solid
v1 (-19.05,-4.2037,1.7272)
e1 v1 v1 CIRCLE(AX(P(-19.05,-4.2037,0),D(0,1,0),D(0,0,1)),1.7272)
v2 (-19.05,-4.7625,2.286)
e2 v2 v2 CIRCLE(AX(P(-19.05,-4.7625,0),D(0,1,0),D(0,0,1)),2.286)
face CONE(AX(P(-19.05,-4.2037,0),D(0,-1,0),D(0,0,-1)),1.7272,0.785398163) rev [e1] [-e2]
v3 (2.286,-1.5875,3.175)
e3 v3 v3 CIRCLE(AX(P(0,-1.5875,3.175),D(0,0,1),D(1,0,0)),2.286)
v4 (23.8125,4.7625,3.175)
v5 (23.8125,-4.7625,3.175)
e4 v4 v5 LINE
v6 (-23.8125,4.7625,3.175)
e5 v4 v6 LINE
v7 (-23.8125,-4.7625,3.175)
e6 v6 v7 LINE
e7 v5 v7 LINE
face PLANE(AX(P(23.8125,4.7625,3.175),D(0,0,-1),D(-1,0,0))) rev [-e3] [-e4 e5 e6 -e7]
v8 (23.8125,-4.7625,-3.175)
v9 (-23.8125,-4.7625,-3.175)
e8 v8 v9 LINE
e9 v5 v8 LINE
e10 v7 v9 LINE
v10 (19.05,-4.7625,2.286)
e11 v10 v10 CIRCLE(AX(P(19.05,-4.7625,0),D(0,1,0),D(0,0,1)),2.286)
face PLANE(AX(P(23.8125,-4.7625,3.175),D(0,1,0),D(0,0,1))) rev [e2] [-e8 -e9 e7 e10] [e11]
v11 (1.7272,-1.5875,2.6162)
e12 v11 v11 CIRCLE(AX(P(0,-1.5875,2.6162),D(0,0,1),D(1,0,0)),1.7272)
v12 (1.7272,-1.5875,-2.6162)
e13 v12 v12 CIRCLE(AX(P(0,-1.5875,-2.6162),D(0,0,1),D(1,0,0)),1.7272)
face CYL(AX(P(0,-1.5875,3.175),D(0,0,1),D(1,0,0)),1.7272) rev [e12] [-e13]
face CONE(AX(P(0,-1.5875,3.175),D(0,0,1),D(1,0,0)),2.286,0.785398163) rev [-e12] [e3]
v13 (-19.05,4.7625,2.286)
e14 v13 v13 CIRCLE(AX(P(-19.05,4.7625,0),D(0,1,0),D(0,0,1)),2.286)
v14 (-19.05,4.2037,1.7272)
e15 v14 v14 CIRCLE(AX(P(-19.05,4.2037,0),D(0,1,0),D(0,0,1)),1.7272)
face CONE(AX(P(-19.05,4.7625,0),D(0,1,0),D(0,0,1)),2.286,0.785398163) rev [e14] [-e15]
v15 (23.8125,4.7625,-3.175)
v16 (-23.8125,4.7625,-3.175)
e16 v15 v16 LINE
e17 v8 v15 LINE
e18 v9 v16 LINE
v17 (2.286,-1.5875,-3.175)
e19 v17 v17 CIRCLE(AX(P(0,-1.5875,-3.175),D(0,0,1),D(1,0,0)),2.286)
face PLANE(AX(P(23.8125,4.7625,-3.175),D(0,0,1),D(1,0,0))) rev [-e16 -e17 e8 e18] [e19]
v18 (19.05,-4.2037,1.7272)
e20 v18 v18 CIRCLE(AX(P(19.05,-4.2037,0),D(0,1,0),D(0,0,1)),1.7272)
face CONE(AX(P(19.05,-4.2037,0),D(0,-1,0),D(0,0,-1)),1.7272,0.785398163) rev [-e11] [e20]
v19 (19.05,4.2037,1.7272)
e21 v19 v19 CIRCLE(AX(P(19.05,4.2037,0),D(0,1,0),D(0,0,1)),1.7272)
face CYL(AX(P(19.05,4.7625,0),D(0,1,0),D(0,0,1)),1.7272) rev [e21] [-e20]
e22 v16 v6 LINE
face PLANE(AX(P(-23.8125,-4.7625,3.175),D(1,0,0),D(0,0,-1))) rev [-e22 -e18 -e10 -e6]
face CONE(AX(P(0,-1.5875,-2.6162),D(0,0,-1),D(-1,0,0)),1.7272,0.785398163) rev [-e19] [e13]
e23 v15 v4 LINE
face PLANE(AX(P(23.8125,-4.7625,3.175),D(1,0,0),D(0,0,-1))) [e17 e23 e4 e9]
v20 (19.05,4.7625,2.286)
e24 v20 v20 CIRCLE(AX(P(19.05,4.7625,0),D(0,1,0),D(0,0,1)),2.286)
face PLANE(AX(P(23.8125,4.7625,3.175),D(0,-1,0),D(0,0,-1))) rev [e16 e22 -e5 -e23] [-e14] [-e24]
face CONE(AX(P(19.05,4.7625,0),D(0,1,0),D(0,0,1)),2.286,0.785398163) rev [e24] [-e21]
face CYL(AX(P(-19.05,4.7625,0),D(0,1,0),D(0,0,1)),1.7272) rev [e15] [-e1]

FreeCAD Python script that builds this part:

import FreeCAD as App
import Part
import Sketcher

V = App.Vector
Q = App.Units.Quantity


def add_polygon(sketch, points):
    """Adds a closed chain of lines whose ends are joined by coincident constraints."""
    first, n = sketch.GeometryCount, len(points)
    for a, b in zip(points, points[1:] + points[:1]):
        sketch.addGeometry(Part.LineSegment(App.Vector(*a, 0), App.Vector(*b, 0)), False)
    for i in range(n):
        sketch.addConstraint(Sketcher.Constraint("Coincident", first + i, 2, first + (i + 1) % n, 1))

doc = App.newDocument("Part")
body = doc.addObject("PartDesign::Body", "Body")

sketch1 = body.newObject("Sketcher::SketchObject", "Sketch")
sketch1.AttachmentSupport = (doc.getObject("YZ_Plane"), [""])
sketch1.MapMode = "FlatFace"
add_polygon(sketch1, [(4.7625, 3.175), (-4.7625, 3.175), (-4.7625, -3.175), (4.7625, -3.175)])
sketch1.addConstraint([
    Sketcher.Constraint("Horizontal", 0),
    Sketcher.Constraint("Vertical", 1),
    Sketcher.Constraint("Horizontal", 2),
    Sketcher.Constraint("Vertical", 3),
    Sketcher.Constraint("Symmetric", 0, 2, 2, 2, -1, 1),
    Sketcher.Constraint("DistanceY", 1, 2, 1, 1, Q("0.25 in")),
    Sketcher.Constraint("DistanceX", 0, 2, 0, 1, Q("0.375 in")),
])
pad1 = body.newObject("PartDesign::Pad", "Pad")
pad1.Profile = sketch1
pad1.Length = Q("1.875 in")
pad1.Midplane = True

sketch2 = body.newObject("Sketcher::SketchObject", "Sketch001")
sketch2.AttachmentSupport = (doc.getObject("YZ_Plane"), [""])
sketch2.MapMode = "FlatFace"
sketch2.AttachmentOffset = App.Placement(V(0, 0, 0.75 * 25.4), App.Rotation())
add_polygon(sketch2, [(-4.7625, 0), (4.7625, 0), (4.7625, 2.286), (4.2037, 1.7272), (-4.2037, 1.7272), (-4.7625, 2.286)])
sketch2.addConstraint([
    Sketcher.Constraint("Horizontal", 0),
    Sketcher.Constraint("Vertical", 1),
    Sketcher.Constraint("Horizontal", 3),
    Sketcher.Constraint("Vertical", 5),
    Sketcher.Constraint("Symmetric", 0, 2, 5, 2, -1, 1),
    Sketcher.Constraint("Perpendicular", 2, 4),
    Sketcher.Constraint("Horizontal", 1, 2, 4, 2),
    Sketcher.Constraint("Equal", 2, 4),
    Sketcher.Constraint("DistanceY", 1, 1, 1, 2, Q("0.09 in")),
    Sketcher.Constraint("DistanceX", 0, 1, 0, 2, Q("0.375 in")),
    Sketcher.Constraint("DistanceX", 3, 2, 3, 1, Q("0.331 in")),
])
groove = body.newObject("PartDesign::Groove", "Groove")
groove.Profile = sketch2
groove.ReferenceAxis = (sketch2, ["H_Axis"])
groove.Angle = 360
doc.recompute()

linearpattern = body.newObject("PartDesign::LinearPattern", "LinearPattern")
linearpattern.Originals = [groove]
linearpattern.Direction = (doc.getObject("X_Axis"), [""])
linearpattern.Mode = "offset"
linearpattern.Offset = Q("1.5 in")
linearpattern.Occurrences = 2
linearpattern.Reversed = True
body.Tip = linearpattern

sketch3 = body.newObject("Sketcher::SketchObject", "Sketch002")
sketch3.AttachmentSupport = (doc.getObject("YZ_Plane"), [""])
sketch3.MapMode = "FlatFace"
add_polygon(sketch3, [(-1.5875, -3.175), (-1.5875, 3.175), (-3.8735, 3.175), (-3.3147, 2.6162), (-3.3147, -2.6162), (-3.8735, -3.175)])
sketch3.addGeometry(Part.LineSegment(V(-1.5875, 3.175, 0), V(-1.5875, -3.175, 0)), True)
sketch3.addConstraint([
    Sketcher.Constraint("Vertical", 0),
    Sketcher.Constraint("Horizontal", 1),
    Sketcher.Constraint("Vertical", 3),
    Sketcher.Constraint("Horizontal", 5),
    Sketcher.Constraint("Vertical", 6),
    Sketcher.Constraint("Coincident", 6, 1, 0, 2),
    Sketcher.Constraint("Symmetric", 1, 2, 4, 2, -1),
    Sketcher.Constraint("Perpendicular", 2, 4),
    Sketcher.Constraint("Horizontal", 4, 2, 6, 2),
    Sketcher.Constraint("Equal", 2, 4),
    Sketcher.Constraint("DistanceX", 1, 2, 1, 1, Q("0.09 in")),
    Sketcher.Constraint("DistanceY", 0, 1, 0, 2, Q("0.25 in")),
    Sketcher.Constraint("DistanceY", 3, 2, 3, 1, Q("0.206 in")),
    Sketcher.Constraint("DistanceX", 0, 2, -1, 1, Q("0.0625 in")),
])
groove2 = body.newObject("PartDesign::Groove", "Groove001")
groove2.Profile = sketch3
groove2.ReferenceAxis = (sketch3, ["Axis0"])
groove2.Angle = 360

doc.recompute()
